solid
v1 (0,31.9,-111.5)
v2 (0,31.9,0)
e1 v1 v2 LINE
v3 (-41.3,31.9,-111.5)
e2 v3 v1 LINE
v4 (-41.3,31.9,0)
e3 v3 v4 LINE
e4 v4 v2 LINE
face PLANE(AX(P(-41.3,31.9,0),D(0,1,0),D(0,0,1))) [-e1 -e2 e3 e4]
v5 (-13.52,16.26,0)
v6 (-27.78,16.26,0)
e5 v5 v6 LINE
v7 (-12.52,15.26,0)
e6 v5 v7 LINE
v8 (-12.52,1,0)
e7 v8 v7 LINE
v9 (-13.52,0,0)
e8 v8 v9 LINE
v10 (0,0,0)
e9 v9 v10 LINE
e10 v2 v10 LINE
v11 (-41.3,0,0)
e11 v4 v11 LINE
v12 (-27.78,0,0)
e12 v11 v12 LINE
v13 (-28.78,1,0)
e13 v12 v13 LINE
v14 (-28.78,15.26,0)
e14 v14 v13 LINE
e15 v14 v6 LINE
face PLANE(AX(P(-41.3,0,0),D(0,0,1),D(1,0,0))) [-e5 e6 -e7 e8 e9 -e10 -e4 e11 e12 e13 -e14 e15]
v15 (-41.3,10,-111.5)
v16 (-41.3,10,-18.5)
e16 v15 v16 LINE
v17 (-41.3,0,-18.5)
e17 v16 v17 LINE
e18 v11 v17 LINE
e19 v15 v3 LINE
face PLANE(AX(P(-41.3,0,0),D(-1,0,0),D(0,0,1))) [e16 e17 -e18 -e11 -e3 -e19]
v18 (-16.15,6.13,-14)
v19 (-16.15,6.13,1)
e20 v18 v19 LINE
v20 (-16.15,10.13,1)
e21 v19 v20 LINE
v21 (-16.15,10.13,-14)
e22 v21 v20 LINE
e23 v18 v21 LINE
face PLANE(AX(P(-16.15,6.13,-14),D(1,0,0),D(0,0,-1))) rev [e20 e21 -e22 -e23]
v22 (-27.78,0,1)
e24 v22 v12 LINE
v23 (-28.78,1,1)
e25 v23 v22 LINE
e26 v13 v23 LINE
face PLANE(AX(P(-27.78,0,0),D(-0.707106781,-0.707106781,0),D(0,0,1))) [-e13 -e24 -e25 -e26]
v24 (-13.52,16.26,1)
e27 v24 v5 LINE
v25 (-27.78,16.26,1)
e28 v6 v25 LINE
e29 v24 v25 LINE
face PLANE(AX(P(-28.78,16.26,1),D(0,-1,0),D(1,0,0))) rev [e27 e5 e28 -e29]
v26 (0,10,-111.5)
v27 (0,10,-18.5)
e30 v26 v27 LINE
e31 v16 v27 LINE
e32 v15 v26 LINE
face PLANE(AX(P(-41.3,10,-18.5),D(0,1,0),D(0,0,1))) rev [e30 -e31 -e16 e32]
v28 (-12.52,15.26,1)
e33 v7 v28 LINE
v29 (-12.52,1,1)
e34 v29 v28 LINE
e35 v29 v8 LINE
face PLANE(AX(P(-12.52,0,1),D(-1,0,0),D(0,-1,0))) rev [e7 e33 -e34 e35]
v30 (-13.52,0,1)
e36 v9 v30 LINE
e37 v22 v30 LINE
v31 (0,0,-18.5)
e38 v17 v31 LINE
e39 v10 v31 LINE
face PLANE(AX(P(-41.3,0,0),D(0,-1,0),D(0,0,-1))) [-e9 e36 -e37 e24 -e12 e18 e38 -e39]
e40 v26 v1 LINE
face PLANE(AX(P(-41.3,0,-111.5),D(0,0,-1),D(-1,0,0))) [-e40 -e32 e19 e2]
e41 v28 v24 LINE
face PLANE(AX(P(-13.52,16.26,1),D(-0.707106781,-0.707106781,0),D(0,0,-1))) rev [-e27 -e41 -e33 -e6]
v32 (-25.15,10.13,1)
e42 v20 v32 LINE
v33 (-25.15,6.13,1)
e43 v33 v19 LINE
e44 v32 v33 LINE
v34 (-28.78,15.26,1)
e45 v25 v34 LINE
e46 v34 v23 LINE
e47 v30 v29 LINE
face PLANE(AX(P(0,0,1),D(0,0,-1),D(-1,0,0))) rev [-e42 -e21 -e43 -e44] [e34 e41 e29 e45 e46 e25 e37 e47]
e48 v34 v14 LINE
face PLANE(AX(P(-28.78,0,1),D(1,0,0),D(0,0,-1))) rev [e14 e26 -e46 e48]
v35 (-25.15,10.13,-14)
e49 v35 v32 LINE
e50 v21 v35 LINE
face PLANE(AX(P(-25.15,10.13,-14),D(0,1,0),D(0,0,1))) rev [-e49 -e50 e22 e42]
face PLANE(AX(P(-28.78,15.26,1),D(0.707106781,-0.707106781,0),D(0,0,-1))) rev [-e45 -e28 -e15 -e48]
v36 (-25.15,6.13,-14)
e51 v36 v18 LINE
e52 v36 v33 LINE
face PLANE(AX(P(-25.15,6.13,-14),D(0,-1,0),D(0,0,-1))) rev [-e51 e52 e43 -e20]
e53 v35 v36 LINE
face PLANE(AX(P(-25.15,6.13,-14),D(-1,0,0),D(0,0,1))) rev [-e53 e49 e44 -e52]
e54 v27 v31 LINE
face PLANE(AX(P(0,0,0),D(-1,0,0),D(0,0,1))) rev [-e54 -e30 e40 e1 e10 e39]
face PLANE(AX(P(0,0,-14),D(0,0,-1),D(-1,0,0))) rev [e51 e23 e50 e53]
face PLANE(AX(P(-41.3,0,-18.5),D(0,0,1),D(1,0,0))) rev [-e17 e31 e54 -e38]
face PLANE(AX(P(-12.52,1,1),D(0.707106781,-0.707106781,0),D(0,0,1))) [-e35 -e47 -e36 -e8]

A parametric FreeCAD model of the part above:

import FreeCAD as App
import Part
import Sketcher
Q = App.Units.Quantity


def edges_at(feature, points):
    """Names of the edges that pass closest to the given points."""
    edges = feature.Shape.Edges
    near = lambda p: min(range(len(edges)), key=lambda i: edges[i].distToShape(Part.Vertex(*p))[0])
    return sorted({f"Edge{near(p) + 1}" for p in points})

doc = App.newDocument("Part")
body = doc.addObject("PartDesign::Body", "Body")

sketch1 = body.newObject("Sketcher::SketchObject", "Sketch")
sketch1.AttachmentSupport = (doc.getObject("YZ_Plane"), [""])
sketch1.MapMode = "FlatFace"
sketch1.addGeometry(Part.LineSegment(App.Vector(31.9, 0, 0), App.Vector(0, 0, 0)), False)
sketch1.addGeometry(Part.LineSegment(App.Vector(0, 0, 0), App.Vector(0, -111.5, 0)), False)
sketch1.addGeometry(Part.LineSegment(App.Vector(0, -111.5, 0), App.Vector(31.9, -111.5, 0)), False)
sketch1.addGeometry(Part.LineSegment(App.Vector(31.9, -111.5, 0), App.Vector(31.9, 0, 0)), False)
sketch1.addConstraint(Sketcher.Constraint("Coincident", 0, 2, 1, 1))
sketch1.addConstraint(Sketcher.Constraint("Coincident", 1, 2, 2, 1))
sketch1.addConstraint(Sketcher.Constraint("Coincident", 2, 2, 3, 1))
sketch1.addConstraint(Sketcher.Constraint("Coincident", 3, 2, 0, 1))
sketch1.addConstraint(Sketcher.Constraint("Horizontal", 0))
sketch1.addConstraint(Sketcher.Constraint("Vertical", 1))
sketch1.addConstraint(Sketcher.Constraint("Horizontal", 2))
sketch1.addConstraint(Sketcher.Constraint("Vertical", 3))
sketch1.addConstraint(Sketcher.Constraint("Coincident", 0, 2, -1, 1))
sketch1.addConstraint(Sketcher.Constraint("DistanceX", 0, 2, 0, 1, Q("31.9 mm")))
sketch1.addConstraint(Sketcher.Constraint("DistanceY", 1, 2, 1, 1, Q("111.5 mm")))
pad1 = body.newObject("PartDesign::Pad", "Pad")
pad1.Profile = sketch1
pad1.Length = 41.3
pad1.Reversed = True

sketch2 = body.newObject("Sketcher::SketchObject", "Sketch001")
sketch2.AttachmentSupport = (doc.getObject("YZ_Plane"), [""])
sketch2.MapMode = "FlatFace"
sketch2.addGeometry(Part.LineSegment(App.Vector(10, -18.5, 0), App.Vector(0, -18.5, 0)), False)
sketch2.addGeometry(Part.LineSegment(App.Vector(0, -18.5, 0), App.Vector(0, -111.5, 0)), False)
sketch2.addGeometry(Part.LineSegment(App.Vector(0, -111.5, 0), App.Vector(10, -111.5, 0)), False)
sketch2.addGeometry(Part.LineSegment(App.Vector(10, -111.5, 0), App.Vector(10, -18.5, 0)), False)
sketch2.addConstraint(Sketcher.Constraint("Coincident", 0, 2, 1, 1))
sketch2.addConstraint(Sketcher.Constraint("Coincident", 1, 2, 2, 1))
sketch2.addConstraint(Sketcher.Constraint("Coincident", 2, 2, 3, 1))
sketch2.addConstraint(Sketcher.Constraint("Coincident", 3, 2, 0, 1))
sketch2.addConstraint(Sketcher.Constraint("Horizontal", 0))
sketch2.addConstraint(Sketcher.Constraint("Vertical", 1))
sketch2.addConstraint(Sketcher.Constraint("Horizontal", 2))
sketch2.addConstraint(Sketcher.Constraint("Vertical", 3))
sketch2.addConstraint(Sketcher.Constraint("PointOnObject", 0, 2, -2))
sketch2.addConstraint(Sketcher.Constraint("DistanceX", 0, 2, 0, 1, Q("10 mm")))
sketch2.addConstraint(Sketcher.Constraint("DistanceY", 1, 2, 1, 1, Q("93 mm")))
sketch2.addConstraint(Sketcher.Constraint("DistanceY", 0, 2, -1, 1, Q("18.5 mm")))
pocket1 = body.newObject("PartDesign::Pocket", "Pocket")
pocket1.Profile = sketch2
pocket1.Type = "ThroughAll"

sketch3 = body.newObject("Sketcher::SketchObject", "Sketch002")
sketch3.AttachmentSupport = (doc.getObject("XY_Plane"), [""])
sketch3.MapMode = "FlatFace"
sketch3.addGeometry(Part.LineSegment(App.Vector(-28.78, 16.26, 0), App.Vector(-28.78, 0, 0)), False)
sketch3.addGeometry(Part.LineSegment(App.Vector(-28.78, 0, 0), App.Vector(-12.52, 0, 0)), False)
sketch3.addGeometry(Part.LineSegment(App.Vector(-12.52, 0, 0), App.Vector(-12.52, 16.26, 0)), False)
sketch3.addGeometry(Part.LineSegment(App.Vector(-12.52, 16.26, 0), App.Vector(-28.78, 16.26, 0)), False)
sketch3.addConstraint(Sketcher.Constraint("Coincident", 0, 2, 1, 1))
sketch3.addConstraint(Sketcher.Constraint("Coincident", 1, 2, 2, 1))
sketch3.addConstraint(Sketcher.Constraint("Coincident", 2, 2, 3, 1))
sketch3.addConstraint(Sketcher.Constraint("Coincident", 3, 2, 0, 1))
sketch3.addConstraint(Sketcher.Constraint("Vertical", 0))
sketch3.addConstraint(Sketcher.Constraint("Horizontal", 1))
sketch3.addConstraint(Sketcher.Constraint("Vertical", 2))
sketch3.addConstraint(Sketcher.Constraint("Horizontal", 3))
sketch3.addConstraint(Sketcher.Constraint("PointOnObject", 0, 2, -1))
sketch3.addConstraint(Sketcher.Constraint("Equal", 3, 0))
sketch3.addConstraint(Sketcher.Constraint("DistanceX", 1, 1, 1, 2, Q("16.26 mm")))
sketch3.addConstraint(Sketcher.Constraint("DistanceX", 0, 2, -1, 1, Q("28.78 mm")))
pad2 = body.newObject("PartDesign::Pad", "Pad001")
pad2.Profile = sketch3
pad2.Length = 1

sketch4 = body.newObject("Sketcher::SketchObject", "Sketch003")
sketch4.AttachmentSupport = (doc.getObject("XY_Plane"), [""])
sketch4.MapMode = "FlatFace"
sketch4.AttachmentOffset = App.Placement(App.Vector(0, 0, 1), App.Rotation())
sketch4.addGeometry(Part.LineSegment(App.Vector(-25.15, 10.13, 0), App.Vector(-25.15, 6.13, 0)), False)
sketch4.addGeometry(Part.LineSegment(App.Vector(-25.15, 6.13, 0), App.Vector(-16.15, 6.13, 0)), False)
sketch4.addGeometry(Part.LineSegment(App.Vector(-16.15, 6.13, 0), App.Vector(-16.15, 10.13, 0)), False)
sketch4.addGeometry(Part.LineSegment(App.Vector(-16.15, 10.13, 0), App.Vector(-25.15, 10.13, 0)), False)
sketch4.addConstraint(Sketcher.Constraint("Coincident", 0, 2, 1, 1))
sketch4.addConstraint(Sketcher.Constraint("Coincident", 1, 2, 2, 1))
sketch4.addConstraint(Sketcher.Constraint("Coincident", 2, 2, 3, 1))
sketch4.addConstraint(Sketcher.Constraint("Coincident", 3, 2, 0, 1))
sketch4.addConstraint(Sketcher.Constraint("Vertical", 0))
sketch4.addConstraint(Sketcher.Constraint("Horizontal", 1))
sketch4.addConstraint(Sketcher.Constraint("Vertical", 2))
sketch4.addConstraint(Sketcher.Constraint("Horizontal", 3))
sketch4.addConstraint(Sketcher.Constraint("DistanceX", 1, 1, 1, 2, Q("9 mm")))
sketch4.addConstraint(Sketcher.Constraint("DistanceY", 0, 2, 0, 1, Q("4 mm")))
sketch4.addConstraint(Sketcher.Constraint("DistanceX", 0, 2, -1, 1, Q("25.15 mm")))
sketch4.addConstraint(Sketcher.Constraint("DistanceY", -1, 1, 0, 2, Q("6.13 mm")))
pocket2 = body.newObject("PartDesign::Pocket", "Pocket001")
pocket2.Profile = sketch4
pocket2.Length = 15
doc.recompute()

chamfer = body.newObject("PartDesign::Chamfer", "Chamfer")
chamfer.Base = (pocket2, edges_at(pocket2, [
    (-12.52, 0, 0.5),
    (-12.52, 16.26, 0.5),
    (-28.78, 16.26, 0.5),
    (-28.78, 0, 0.5),
]))
chamfer.Size = 1

doc.recompute()
